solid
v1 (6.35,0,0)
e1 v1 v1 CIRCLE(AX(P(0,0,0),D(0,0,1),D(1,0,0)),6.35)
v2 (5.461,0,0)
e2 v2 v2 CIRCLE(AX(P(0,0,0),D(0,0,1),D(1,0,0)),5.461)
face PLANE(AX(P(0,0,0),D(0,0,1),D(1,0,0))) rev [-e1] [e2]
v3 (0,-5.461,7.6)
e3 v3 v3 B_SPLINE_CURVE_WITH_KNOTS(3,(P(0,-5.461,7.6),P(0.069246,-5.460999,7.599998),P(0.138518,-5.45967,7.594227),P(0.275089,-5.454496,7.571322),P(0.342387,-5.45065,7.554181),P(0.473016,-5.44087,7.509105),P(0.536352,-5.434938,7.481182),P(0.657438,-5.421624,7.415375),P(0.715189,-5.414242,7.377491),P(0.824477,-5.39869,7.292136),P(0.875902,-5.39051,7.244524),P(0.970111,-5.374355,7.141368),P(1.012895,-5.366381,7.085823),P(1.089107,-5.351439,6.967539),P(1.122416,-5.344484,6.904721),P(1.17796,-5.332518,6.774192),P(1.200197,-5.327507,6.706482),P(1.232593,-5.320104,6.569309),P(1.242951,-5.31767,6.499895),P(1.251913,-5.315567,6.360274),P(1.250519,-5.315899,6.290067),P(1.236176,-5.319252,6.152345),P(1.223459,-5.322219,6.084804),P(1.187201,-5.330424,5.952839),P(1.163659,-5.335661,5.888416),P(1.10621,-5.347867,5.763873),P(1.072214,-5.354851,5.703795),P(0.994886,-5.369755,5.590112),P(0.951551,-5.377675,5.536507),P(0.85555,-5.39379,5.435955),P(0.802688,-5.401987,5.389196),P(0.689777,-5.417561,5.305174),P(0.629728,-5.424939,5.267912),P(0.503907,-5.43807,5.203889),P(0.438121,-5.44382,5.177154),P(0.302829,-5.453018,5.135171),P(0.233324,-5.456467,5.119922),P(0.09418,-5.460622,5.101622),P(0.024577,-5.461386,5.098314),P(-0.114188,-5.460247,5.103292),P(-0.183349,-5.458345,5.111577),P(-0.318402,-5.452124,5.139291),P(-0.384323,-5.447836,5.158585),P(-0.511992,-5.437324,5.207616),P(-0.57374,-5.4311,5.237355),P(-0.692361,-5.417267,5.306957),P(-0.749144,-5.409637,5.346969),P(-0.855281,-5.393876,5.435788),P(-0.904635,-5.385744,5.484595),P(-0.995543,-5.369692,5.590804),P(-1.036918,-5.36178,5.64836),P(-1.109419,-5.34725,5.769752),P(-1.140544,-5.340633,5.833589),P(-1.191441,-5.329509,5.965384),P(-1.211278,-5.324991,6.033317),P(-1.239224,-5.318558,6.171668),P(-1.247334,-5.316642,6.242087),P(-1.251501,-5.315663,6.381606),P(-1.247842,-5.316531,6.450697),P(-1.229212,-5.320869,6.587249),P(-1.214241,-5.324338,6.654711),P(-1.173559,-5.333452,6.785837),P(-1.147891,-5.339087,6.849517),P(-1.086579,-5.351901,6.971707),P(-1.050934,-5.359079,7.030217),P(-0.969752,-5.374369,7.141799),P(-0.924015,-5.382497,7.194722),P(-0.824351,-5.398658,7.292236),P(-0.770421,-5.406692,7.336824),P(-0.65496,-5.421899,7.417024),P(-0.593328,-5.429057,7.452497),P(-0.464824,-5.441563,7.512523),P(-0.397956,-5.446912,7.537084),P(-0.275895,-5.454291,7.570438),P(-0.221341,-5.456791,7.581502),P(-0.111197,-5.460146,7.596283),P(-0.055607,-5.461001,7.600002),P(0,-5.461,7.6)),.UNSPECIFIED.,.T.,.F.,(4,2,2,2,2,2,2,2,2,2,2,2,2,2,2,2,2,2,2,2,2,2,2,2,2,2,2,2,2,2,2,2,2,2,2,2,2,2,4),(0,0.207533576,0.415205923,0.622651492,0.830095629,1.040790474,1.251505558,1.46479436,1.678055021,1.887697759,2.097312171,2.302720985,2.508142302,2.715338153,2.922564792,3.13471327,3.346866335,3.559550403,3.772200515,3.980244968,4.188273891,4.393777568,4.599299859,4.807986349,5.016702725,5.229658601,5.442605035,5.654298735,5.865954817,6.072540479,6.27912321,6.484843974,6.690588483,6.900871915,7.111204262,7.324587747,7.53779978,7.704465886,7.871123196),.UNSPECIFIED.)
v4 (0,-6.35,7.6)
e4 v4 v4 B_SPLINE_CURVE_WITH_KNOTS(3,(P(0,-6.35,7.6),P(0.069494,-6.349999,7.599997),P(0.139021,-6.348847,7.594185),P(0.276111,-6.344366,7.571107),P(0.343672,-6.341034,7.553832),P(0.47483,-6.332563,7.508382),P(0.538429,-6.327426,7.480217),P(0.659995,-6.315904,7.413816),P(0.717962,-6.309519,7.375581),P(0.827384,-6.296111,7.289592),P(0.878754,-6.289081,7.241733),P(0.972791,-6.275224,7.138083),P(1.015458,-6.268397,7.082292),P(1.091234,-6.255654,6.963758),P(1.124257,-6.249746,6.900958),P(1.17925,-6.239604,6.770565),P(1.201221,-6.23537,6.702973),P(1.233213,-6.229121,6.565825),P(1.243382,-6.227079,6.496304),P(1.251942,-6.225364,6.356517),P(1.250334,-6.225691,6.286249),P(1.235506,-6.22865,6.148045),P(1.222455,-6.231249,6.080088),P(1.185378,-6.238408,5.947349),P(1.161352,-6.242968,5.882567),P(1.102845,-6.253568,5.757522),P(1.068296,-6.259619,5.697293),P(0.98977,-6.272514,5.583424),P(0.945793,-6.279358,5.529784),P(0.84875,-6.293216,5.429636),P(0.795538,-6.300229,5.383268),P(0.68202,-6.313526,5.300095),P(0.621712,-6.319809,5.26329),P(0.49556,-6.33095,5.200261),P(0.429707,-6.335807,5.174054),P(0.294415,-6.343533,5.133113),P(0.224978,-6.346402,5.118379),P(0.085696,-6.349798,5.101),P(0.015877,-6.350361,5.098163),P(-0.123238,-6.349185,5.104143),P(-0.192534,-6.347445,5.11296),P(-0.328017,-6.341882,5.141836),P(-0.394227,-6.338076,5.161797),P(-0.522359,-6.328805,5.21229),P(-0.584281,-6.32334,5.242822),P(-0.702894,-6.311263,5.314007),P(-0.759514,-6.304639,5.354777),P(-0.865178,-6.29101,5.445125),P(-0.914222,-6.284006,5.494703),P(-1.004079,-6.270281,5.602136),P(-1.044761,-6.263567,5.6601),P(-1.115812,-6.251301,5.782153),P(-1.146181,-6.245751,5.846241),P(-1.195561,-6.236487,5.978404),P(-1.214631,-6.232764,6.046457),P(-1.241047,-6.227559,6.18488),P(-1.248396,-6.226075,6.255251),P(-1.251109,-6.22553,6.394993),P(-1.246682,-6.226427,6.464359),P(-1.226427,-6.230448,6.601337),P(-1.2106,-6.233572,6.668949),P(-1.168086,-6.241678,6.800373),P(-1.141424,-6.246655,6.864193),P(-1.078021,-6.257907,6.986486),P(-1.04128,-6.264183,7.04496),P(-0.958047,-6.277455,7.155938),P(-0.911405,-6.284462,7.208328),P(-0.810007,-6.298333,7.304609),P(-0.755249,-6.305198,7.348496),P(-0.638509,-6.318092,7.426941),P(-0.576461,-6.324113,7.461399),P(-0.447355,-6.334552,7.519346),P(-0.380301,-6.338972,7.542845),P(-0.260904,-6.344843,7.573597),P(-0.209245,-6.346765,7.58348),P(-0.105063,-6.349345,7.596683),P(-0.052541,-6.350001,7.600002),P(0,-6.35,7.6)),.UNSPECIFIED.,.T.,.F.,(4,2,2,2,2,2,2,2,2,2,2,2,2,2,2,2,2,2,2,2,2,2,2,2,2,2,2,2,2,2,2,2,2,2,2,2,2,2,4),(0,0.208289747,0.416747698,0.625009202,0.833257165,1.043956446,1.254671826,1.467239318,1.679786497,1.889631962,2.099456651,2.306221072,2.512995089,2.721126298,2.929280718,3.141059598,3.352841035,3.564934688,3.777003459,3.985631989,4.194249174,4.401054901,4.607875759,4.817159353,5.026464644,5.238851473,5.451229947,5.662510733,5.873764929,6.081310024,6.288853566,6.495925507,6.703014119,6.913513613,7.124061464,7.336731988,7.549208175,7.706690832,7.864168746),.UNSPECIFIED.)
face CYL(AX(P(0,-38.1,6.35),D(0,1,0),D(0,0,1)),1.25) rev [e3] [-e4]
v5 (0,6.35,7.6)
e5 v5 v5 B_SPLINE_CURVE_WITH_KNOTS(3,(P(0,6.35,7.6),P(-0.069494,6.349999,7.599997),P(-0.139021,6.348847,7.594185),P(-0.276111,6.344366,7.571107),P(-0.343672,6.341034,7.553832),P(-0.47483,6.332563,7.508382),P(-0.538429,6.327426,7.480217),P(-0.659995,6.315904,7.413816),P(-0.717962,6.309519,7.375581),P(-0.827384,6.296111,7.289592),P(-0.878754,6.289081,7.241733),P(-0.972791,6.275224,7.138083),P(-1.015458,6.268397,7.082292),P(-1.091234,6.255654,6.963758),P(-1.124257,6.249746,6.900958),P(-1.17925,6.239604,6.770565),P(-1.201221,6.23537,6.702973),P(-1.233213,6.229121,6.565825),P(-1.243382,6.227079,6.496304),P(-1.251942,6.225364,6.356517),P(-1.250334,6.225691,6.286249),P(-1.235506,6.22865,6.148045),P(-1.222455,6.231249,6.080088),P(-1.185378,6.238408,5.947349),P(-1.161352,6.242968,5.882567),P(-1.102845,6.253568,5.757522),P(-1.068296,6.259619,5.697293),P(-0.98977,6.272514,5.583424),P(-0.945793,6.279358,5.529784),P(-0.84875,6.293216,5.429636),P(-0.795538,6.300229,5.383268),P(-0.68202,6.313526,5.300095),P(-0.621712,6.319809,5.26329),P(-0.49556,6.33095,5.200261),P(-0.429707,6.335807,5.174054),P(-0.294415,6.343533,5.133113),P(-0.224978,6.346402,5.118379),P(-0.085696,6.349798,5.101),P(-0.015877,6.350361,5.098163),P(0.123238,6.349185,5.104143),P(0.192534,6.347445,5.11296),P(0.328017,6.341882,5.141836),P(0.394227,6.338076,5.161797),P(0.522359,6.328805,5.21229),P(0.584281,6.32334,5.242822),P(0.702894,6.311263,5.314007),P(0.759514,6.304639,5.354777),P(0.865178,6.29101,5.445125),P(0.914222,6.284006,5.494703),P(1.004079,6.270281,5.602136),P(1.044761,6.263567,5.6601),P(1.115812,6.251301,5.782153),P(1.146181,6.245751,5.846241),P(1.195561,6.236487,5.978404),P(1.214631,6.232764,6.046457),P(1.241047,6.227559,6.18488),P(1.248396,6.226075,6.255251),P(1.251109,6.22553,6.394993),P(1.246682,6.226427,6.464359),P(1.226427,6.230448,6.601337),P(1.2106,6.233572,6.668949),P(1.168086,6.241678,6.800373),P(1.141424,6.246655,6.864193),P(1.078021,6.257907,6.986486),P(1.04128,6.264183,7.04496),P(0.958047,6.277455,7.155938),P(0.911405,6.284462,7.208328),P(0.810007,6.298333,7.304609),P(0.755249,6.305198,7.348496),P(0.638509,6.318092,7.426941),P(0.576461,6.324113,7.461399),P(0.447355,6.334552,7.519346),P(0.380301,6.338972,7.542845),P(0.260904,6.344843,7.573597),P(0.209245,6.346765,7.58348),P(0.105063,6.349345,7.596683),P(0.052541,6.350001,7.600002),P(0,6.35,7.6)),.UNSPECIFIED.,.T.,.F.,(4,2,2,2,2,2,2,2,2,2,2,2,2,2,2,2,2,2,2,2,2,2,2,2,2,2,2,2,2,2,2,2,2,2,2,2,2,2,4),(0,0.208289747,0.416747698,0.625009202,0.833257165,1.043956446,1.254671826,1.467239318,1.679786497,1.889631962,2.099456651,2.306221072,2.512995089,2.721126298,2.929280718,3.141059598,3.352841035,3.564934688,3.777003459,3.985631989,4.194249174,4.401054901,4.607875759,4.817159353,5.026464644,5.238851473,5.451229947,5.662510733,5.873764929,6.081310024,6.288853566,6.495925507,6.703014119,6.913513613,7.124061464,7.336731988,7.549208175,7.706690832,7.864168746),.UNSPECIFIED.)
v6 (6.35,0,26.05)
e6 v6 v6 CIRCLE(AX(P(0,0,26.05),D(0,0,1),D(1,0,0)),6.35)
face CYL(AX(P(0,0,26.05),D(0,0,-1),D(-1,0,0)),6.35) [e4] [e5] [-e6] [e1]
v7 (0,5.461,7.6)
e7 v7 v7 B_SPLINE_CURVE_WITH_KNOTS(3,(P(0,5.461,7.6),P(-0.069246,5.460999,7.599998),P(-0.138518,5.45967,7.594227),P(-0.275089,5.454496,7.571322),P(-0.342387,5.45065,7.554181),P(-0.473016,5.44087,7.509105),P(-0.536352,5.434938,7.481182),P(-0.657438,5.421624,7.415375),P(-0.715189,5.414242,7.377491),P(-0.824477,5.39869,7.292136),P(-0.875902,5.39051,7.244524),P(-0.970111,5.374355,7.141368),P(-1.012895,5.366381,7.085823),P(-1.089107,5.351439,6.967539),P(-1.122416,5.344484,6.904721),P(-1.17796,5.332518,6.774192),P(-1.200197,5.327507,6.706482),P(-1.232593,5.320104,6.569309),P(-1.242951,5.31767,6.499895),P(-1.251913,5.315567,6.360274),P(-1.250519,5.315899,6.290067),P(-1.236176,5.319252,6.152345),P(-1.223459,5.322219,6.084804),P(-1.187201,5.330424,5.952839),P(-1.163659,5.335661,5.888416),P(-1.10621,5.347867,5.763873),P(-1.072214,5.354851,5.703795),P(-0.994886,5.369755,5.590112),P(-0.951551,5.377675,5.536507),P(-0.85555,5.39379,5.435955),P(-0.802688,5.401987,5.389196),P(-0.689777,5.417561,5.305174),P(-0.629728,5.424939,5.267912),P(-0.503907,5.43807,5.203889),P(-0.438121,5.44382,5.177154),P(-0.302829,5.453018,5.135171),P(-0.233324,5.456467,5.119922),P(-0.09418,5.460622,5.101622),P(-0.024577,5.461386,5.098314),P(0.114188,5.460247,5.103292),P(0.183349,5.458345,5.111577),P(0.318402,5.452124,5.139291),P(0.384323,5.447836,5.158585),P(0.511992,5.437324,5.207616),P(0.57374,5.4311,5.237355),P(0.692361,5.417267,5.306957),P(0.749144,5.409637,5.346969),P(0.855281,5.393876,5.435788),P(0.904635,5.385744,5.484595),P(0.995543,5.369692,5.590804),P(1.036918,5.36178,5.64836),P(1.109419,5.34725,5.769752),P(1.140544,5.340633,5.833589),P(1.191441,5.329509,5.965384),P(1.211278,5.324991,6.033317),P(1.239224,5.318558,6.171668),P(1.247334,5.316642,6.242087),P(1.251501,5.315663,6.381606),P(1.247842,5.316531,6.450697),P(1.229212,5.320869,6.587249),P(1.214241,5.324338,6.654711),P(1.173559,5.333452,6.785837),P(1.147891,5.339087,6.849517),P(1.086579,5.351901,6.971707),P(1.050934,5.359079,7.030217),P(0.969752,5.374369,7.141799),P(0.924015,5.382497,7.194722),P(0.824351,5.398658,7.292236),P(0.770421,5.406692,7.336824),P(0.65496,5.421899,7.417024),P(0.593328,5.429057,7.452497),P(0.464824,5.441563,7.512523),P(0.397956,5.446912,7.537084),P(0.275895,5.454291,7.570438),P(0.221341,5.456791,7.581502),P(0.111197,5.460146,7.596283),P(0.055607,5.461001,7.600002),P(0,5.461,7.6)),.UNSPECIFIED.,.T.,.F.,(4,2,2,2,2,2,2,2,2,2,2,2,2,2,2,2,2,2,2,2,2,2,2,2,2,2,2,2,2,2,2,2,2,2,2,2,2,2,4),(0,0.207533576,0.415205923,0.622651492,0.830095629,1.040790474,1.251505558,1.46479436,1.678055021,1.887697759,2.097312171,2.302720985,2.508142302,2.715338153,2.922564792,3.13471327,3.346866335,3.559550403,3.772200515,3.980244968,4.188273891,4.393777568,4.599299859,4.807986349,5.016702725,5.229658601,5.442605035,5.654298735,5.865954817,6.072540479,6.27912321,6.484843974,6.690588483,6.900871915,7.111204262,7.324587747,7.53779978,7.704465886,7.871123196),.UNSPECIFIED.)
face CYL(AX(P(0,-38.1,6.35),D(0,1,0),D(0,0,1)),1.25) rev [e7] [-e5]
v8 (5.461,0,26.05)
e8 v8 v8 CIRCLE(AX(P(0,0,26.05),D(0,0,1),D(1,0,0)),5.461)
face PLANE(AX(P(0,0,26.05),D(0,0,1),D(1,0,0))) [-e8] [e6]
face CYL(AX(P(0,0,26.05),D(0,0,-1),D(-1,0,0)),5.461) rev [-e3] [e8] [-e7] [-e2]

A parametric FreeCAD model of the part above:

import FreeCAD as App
import Part
import Sketcher
from FreeCAD import Vector
Q = App.Units.Quantity

doc = App.newDocument("Part")
params = doc.addObject("Spreadsheet::Sheet", "Params")
for row, (alias, value) in enumerate([
    ("sketch1_diameter", "0.5 in"),
    ("sketch1_diameter2", "0.43 in"),
    ("pad1_length", "26.05 mm"),
], start=1):
    params.set(f"A{row}", alias)
    params.set(f"B{row}", "=" + value)
    params.setAlias(f"B{row}", alias)

body = doc.addObject("PartDesign::Body", "Body")

sketch1 = doc.addObject("Sketcher::SketchObject", "Sketch")
body.addObject(sketch1)
sketch1.AttachmentSupport = (doc.XY_Plane, [""])
sketch1.MapMode = "FlatFace"
sketch1.addGeometry([
    Part.Circle(Vector(0, 0, 0), Vector(0, 0, 1), 6),
    Part.Circle(Vector(0, 0, 0), Vector(0, 0, 1), 5),
], False)
sketch1.addConstraint([
    Sketcher.Constraint("Coincident", 0, 3, -1, 1),
    Sketcher.Constraint("Coincident", 1, 3, -1, 1),
    Sketcher.Constraint("Diameter", 0, Q("0.5 in")),
    Sketcher.Constraint("Diameter", 1, Q("0.43 in")),
])
sketch1.setExpression("Constraints[2]", "Params.sketch1_diameter")
sketch1.setExpression("Constraints[3]", "Params.sketch1_diameter2")
pad1 = doc.addObject("PartDesign::Pad", "Pad")
body.addObject(pad1)
pad1.Profile = sketch1
pad1.setExpression("Length", "Params.pad1_length")

sketch2 = doc.addObject("Sketcher::SketchObject", "Sketch001")
body.addObject(sketch2)
sketch2.AttachmentSupport = (doc.XZ_Plane, [""])
sketch2.MapMode = "FlatFace"
sketch2.addGeometry(Part.Circle(Vector(0, 6.3, 0), Vector(0, 0, 1), 1.2), False)
sketch2.addConstraint([
    Sketcher.Constraint("PointOnObject", 0, 3, -2),
    Sketcher.Constraint("Diameter", 0, Q("2.5 mm")),
    Sketcher.Constraint("DistanceY", -1, 1, 0, 3, Q("0.25 in")),
])
pocket1 = doc.addObject("PartDesign::Pocket", "Pocket")
body.addObject(pocket1)
pocket1.Profile = sketch2
pocket1.Type = "ThroughAll"
pocket1.Midplane = True

doc.recompute()
